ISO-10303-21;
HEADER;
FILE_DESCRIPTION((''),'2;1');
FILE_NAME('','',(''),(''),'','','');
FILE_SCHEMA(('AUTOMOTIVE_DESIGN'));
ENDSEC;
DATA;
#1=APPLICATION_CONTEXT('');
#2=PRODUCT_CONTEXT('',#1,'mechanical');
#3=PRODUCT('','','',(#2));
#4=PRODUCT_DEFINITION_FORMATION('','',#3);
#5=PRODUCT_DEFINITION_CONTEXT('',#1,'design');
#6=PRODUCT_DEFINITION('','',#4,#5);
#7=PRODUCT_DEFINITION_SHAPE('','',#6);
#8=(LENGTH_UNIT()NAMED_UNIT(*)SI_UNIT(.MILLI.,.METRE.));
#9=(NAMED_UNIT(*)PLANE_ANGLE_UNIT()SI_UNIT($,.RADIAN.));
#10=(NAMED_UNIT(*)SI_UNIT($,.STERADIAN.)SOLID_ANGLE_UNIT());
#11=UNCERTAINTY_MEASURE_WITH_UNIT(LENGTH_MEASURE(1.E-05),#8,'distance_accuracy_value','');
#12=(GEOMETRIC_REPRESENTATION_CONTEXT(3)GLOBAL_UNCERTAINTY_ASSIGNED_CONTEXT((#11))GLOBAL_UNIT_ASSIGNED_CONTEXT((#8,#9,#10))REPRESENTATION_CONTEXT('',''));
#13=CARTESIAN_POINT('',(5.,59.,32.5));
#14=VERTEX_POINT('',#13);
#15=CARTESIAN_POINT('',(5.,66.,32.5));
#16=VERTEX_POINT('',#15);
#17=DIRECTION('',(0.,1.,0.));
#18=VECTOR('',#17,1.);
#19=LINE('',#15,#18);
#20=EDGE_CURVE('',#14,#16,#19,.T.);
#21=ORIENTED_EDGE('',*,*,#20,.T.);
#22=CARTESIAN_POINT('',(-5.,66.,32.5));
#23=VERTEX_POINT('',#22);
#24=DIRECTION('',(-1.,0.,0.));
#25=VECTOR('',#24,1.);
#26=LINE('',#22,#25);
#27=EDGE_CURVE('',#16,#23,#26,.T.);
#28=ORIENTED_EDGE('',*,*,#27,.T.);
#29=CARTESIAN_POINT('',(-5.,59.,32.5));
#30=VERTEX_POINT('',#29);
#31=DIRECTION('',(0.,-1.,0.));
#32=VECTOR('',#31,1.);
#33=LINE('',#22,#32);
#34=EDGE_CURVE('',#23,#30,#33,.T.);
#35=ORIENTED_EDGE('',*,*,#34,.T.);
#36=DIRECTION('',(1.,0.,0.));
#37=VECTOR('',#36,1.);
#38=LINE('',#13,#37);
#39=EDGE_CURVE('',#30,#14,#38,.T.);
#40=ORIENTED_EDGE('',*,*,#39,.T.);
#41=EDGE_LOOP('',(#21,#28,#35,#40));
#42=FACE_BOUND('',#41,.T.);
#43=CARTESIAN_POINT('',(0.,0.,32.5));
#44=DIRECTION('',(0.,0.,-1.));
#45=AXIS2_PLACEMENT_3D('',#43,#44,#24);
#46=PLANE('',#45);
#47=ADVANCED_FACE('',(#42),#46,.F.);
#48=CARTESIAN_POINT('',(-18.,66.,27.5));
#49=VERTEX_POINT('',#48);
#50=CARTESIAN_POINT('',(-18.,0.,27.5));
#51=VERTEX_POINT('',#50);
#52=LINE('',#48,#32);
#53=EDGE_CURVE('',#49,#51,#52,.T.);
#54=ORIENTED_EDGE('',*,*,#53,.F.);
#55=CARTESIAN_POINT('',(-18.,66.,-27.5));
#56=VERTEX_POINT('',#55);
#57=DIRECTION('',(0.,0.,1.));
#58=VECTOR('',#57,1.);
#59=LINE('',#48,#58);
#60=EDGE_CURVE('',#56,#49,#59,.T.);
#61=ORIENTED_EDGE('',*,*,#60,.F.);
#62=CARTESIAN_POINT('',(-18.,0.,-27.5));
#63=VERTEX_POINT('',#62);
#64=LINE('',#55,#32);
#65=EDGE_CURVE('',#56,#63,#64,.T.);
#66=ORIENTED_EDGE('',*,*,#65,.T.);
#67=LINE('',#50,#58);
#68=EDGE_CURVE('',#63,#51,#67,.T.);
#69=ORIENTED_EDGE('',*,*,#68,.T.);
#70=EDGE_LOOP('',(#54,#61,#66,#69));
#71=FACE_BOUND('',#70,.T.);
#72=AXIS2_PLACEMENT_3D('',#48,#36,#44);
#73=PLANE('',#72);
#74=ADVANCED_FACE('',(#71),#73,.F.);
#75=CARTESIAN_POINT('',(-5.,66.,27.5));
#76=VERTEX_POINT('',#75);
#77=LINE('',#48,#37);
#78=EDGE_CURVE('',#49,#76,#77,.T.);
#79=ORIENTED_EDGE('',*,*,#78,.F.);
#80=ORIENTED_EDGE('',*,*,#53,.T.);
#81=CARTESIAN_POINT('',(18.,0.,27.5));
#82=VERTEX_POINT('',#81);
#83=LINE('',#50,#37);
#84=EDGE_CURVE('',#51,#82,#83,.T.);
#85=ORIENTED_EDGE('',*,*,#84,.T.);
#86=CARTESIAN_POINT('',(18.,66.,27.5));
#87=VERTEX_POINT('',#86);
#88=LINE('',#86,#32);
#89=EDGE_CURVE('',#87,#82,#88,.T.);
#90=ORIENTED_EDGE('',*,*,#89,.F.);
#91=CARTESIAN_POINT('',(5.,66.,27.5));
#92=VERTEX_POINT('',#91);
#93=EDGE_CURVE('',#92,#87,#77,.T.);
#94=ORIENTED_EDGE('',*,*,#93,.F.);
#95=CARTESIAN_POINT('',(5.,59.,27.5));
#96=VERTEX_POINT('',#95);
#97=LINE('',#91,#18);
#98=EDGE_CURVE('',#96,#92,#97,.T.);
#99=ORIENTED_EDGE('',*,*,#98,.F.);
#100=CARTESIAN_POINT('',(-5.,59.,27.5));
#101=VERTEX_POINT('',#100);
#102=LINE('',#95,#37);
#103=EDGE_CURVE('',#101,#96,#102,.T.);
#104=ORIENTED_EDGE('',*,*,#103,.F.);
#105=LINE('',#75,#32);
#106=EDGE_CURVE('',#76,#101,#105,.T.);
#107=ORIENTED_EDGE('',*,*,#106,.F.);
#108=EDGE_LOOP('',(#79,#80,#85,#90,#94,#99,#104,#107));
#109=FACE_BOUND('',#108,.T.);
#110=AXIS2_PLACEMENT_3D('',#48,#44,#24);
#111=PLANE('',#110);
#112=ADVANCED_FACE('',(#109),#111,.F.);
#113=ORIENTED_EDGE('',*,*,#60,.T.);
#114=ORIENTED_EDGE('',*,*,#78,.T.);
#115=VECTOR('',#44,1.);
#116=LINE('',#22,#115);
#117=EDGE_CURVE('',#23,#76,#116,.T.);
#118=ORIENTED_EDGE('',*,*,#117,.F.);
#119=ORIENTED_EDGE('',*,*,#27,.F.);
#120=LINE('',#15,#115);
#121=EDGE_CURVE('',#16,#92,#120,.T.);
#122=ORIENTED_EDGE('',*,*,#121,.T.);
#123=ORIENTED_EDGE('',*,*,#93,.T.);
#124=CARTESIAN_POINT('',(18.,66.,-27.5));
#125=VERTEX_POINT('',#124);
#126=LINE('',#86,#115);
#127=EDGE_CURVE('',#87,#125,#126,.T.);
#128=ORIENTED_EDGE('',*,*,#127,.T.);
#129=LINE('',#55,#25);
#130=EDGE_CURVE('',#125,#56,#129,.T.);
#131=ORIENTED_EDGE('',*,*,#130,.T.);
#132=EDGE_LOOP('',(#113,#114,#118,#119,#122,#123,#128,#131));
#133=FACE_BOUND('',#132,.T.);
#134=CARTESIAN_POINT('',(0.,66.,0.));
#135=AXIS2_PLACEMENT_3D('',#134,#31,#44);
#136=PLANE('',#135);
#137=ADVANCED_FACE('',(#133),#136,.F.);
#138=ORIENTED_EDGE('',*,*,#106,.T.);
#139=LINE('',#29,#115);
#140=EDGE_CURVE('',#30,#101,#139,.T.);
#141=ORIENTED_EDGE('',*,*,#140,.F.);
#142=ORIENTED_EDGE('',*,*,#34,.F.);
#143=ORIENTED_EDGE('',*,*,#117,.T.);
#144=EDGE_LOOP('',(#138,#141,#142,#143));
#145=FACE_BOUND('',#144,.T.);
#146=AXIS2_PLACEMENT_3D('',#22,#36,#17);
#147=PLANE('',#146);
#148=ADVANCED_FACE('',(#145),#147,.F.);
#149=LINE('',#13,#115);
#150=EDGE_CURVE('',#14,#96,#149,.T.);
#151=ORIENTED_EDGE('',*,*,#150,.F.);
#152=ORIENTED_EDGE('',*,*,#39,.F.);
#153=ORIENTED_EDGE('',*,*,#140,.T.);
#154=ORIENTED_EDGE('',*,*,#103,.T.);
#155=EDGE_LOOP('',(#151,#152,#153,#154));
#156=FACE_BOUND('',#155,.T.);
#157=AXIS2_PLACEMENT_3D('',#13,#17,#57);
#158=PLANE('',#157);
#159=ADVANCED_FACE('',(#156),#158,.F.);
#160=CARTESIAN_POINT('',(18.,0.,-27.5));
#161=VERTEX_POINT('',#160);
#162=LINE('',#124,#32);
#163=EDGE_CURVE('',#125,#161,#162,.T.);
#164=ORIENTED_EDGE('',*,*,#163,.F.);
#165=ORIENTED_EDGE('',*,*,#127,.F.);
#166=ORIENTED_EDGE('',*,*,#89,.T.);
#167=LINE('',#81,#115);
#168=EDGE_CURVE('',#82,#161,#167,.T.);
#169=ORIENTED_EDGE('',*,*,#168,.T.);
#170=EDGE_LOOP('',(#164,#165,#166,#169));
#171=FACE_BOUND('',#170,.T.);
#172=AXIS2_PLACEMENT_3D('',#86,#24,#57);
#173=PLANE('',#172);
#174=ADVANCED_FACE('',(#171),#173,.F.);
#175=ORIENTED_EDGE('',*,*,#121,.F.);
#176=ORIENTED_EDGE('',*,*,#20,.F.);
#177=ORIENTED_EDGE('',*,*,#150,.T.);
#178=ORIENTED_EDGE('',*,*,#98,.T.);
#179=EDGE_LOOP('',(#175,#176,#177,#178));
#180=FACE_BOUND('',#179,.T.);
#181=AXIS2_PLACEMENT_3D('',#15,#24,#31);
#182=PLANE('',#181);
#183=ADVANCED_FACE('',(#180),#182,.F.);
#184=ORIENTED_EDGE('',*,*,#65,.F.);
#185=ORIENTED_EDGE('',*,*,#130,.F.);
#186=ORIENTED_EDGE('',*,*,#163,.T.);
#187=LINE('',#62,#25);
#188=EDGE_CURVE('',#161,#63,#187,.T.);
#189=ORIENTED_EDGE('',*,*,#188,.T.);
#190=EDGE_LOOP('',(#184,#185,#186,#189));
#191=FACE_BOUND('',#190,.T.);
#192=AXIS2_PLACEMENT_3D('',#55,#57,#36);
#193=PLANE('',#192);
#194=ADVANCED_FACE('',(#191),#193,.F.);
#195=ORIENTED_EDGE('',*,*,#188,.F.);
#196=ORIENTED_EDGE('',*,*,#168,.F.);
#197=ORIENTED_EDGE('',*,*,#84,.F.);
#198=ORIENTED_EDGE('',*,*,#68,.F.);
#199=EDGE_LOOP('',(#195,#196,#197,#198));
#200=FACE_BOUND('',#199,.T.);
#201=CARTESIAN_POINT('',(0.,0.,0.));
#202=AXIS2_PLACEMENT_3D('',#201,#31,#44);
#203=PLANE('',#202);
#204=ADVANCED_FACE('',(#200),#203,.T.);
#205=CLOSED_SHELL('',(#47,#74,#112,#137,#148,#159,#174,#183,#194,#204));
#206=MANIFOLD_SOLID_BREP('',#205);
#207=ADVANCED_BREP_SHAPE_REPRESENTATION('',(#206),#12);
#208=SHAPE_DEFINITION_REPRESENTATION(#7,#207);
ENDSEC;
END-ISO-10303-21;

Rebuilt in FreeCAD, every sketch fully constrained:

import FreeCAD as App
import Part
import Sketcher

doc = App.newDocument("Part")
body = doc.addObject("PartDesign::Body", "Body")

# Sketch on XZ plane
sketch1 = doc.addObject("Sketcher::SketchObject", "Sketch")
body.addObject(sketch1)
sketch1.AttachmentSupport = (doc.XZ_Plane, [""])
sketch1.MapMode = "FlatFace"
sketch1.addGeometry([
    Part.LineSegment(App.Vector(-18, -27.5, 0), App.Vector(-18, 27.5, 0)),
    Part.LineSegment(App.Vector(-18, 27.5, 0), App.Vector(18, 27.5, 0)),
    Part.LineSegment(App.Vector(18, 27.5, 0), App.Vector(18, -27.5, 0)),
    Part.LineSegment(App.Vector(18, -27.5, 0), App.Vector(-18, -27.5, 0)),
], False)
sketch1.addConstraint([
    Sketcher.Constraint("Coincident", 0, 2, 1, 1),
    Sketcher.Constraint("Coincident", 1, 2, 2, 1),
    Sketcher.Constraint("Coincident", 2, 2, 3, 1),
    Sketcher.Constraint("Coincident", 3, 2, 0, 1),
    Sketcher.Constraint("Vertical", 0),
    Sketcher.Constraint("Horizontal", 1),
    Sketcher.Constraint("Vertical", 2),
    Sketcher.Constraint("Horizontal", 3),
    Sketcher.Constraint("Symmetric", 0, 2, 2, 2, -1, 1),
    Sketcher.Constraint("DistanceX", 1, 1, 1, 2, 36.0),
    Sketcher.Constraint("DistanceY", 0, 1, 0, 2, 55.0),
])
pad1 = doc.addObject("PartDesign::Pad", "Pad")
body.addObject(pad1)
pad1.Profile = sketch1
pad1.Length = 66
pad1.Reversed = True

# Sketch on XY plane
sketch2 = doc.addObject("Sketcher::SketchObject", "Sketch001")
body.addObject(sketch2)
sketch2.AttachmentSupport = (doc.XY_Plane, [""])
sketch2.MapMode = "FlatFace"
sketch2.AttachmentOffset = App.Placement(App.Vector(0, 0, 27.5), App.Rotation())
sketch2.addGeometry([
    Part.LineSegment(App.Vector(-5, 66, 0), App.Vector(-5, 59, 0)),
    Part.LineSegment(App.Vector(-5, 59, 0), App.Vector(5, 59, 0)),
    Part.LineSegment(App.Vector(5, 59, 0), App.Vector(5, 66, 0)),
    Part.LineSegment(App.Vector(5, 66, 0), App.Vector(-5, 66, 0)),
], False)
sketch2.addConstraint([
    Sketcher.Constraint("Coincident", 0, 2, 1, 1),
    Sketcher.Constraint("Coincident", 1, 2, 2, 1),
    Sketcher.Constraint("Coincident", 2, 2, 3, 1),
    Sketcher.Constraint("Coincident", 3, 2, 0, 1),
    Sketcher.Constraint("Vertical", 0),
    Sketcher.Constraint("Horizontal", 1),
    Sketcher.Constraint("Vertical", 2),
    Sketcher.Constraint("Horizontal", 3),
    Sketcher.Constraint("DistanceX", 1, 1, 1, 2, 10.0),
    Sketcher.Constraint("DistanceY", 0, 2, 0, 1, 7.0),
    Sketcher.Constraint("DistanceX", 0, 2, -1, 1, 5.0),
    Sketcher.Constraint("DistanceY", -1, 1, 0, 2, 59.0),
])
pad2 = doc.addObject("PartDesign::Pad", "Pad001")
body.addObject(pad2)
pad2.Profile = sketch2
pad2.Length = 5

doc.recompute()
